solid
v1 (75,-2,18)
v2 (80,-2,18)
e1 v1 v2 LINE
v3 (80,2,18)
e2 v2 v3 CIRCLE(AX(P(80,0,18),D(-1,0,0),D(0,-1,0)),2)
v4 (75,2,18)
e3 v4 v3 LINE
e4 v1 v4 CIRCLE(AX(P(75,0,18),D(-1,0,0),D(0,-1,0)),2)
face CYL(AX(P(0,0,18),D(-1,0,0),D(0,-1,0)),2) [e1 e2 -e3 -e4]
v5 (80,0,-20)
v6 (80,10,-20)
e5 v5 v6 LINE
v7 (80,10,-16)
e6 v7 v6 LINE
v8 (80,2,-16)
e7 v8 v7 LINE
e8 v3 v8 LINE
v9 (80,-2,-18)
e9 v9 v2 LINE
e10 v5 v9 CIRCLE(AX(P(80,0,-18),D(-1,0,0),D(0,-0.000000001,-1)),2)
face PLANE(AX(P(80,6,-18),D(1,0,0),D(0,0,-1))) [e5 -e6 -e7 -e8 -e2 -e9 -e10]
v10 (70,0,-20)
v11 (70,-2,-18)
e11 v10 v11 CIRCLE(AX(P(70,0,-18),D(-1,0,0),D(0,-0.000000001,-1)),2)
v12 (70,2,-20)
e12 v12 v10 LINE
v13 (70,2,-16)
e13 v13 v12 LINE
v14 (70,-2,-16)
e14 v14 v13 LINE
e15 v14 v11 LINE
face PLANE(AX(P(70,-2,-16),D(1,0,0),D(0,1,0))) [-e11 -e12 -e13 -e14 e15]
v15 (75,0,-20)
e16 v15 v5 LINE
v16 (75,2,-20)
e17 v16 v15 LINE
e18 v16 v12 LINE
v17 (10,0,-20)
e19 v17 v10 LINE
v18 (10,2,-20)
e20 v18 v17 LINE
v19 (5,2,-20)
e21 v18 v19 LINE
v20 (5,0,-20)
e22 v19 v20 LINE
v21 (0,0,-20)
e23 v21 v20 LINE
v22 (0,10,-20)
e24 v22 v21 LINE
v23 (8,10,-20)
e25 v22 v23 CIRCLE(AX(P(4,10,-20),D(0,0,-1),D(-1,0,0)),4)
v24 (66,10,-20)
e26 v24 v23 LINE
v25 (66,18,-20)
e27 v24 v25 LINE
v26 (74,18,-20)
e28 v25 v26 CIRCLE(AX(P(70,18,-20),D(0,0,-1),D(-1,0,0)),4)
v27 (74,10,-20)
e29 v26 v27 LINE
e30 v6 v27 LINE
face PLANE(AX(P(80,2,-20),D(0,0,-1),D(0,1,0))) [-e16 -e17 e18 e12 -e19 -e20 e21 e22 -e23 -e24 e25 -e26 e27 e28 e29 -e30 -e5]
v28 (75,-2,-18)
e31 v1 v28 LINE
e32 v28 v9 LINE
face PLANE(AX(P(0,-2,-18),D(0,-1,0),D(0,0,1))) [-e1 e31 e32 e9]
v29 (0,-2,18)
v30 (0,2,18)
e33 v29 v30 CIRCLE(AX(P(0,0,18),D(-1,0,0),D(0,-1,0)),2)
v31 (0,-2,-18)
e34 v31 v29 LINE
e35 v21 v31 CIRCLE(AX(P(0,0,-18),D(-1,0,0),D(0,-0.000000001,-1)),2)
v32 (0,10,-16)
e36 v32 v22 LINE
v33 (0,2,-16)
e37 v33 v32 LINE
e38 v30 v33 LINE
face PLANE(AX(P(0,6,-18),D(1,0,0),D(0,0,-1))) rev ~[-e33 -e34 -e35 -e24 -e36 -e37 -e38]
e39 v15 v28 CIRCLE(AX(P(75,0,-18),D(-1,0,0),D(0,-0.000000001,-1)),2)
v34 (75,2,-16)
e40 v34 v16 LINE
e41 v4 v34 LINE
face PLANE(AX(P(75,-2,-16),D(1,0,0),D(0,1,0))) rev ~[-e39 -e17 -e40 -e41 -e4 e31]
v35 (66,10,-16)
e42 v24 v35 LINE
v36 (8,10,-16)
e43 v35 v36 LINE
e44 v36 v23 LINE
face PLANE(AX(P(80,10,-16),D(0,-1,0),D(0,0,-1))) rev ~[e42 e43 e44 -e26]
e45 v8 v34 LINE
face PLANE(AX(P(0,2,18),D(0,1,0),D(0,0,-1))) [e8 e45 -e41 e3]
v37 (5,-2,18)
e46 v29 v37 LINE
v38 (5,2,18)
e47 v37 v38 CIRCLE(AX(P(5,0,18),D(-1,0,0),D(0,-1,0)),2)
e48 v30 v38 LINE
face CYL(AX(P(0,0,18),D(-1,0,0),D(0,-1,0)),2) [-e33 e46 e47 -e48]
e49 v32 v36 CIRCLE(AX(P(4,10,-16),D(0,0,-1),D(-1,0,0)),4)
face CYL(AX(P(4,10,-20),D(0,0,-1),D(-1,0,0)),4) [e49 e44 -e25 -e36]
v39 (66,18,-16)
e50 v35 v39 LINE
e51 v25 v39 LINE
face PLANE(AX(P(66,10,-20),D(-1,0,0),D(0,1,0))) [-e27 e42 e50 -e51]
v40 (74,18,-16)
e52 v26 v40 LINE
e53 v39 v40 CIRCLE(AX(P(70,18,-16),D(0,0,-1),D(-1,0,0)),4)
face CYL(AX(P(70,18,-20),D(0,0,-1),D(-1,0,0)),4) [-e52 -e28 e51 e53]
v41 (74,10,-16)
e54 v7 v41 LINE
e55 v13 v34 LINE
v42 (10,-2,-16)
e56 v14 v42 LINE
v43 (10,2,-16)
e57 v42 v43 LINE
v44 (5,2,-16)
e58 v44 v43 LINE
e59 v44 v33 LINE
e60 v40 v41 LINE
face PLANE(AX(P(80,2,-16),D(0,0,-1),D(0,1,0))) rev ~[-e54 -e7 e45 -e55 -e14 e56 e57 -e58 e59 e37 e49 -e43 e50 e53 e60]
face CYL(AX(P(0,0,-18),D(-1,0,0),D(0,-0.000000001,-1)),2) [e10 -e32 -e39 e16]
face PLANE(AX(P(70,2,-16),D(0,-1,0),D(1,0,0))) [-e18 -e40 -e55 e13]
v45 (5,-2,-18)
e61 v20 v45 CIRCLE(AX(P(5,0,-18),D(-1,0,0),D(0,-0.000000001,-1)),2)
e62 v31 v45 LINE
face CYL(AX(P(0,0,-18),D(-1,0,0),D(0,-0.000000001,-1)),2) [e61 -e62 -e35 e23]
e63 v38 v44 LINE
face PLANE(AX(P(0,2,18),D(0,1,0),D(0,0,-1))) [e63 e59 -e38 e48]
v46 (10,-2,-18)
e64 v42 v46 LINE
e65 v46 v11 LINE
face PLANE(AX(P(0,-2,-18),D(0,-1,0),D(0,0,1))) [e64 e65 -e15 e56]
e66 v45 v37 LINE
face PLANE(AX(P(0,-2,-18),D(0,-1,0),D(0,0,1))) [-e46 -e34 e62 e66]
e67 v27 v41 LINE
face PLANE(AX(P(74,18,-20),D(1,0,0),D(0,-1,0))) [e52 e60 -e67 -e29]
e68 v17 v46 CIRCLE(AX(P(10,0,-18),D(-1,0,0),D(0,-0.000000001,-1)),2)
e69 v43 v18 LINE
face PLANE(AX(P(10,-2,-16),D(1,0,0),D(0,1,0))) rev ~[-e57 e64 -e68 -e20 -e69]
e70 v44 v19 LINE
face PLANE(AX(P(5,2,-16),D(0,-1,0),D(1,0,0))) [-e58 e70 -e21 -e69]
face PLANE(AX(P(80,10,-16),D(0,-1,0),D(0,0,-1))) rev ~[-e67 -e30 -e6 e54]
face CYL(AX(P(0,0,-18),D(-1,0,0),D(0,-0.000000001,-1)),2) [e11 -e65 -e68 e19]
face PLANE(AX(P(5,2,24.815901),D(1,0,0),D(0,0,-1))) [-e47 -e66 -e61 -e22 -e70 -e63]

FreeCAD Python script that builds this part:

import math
import FreeCAD as App
import Part
import Sketcher


def add_polygon(sketch, points):
    """Adds a closed chain of lines whose ends are joined by coincident constraints."""
    first, n = sketch.GeometryCount, len(points)
    for a, b in zip(points, points[1:] + points[:1]):
        sketch.addGeometry(Part.LineSegment(App.Vector(*a, 0), App.Vector(*b, 0)), False)
    for i in range(n):
        sketch.addConstraint(Sketcher.Constraint("Coincident", first + i, 2, first + (i + 1) % n, 1))

doc = App.newDocument("Part")
body = doc.addObject("PartDesign::Body", "Body")

# Sketch on YZ plane
sketch1 = body.newObject("Sketcher::SketchObject", "Sketch")
sketch1.AttachmentSupport = (doc.getObject("YZ_Plane"), [""])
sketch1.MapMode = "FlatFace"
sketch1.addGeometry(Part.LineSegment(App.Vector(2, -20, 0), App.Vector(2, 18, 0)), False)
sketch1.addGeometry(Part.ArcOfCircle(Part.Circle(App.Vector(0, 18, 0), App.Vector(0, 0, 1), 2), math.radians(0), math.radians(180)), False)
sketch1.addGeometry(Part.LineSegment(App.Vector(-2, 18, 0), App.Vector(-2, -18, 0)), False)
sketch1.addGeometry(Part.ArcOfCircle(Part.Circle(App.Vector(0, -18, 0), App.Vector(0, 0, 1), 2), math.radians(-180), math.radians(-90)), False)
sketch1.addGeometry(Part.LineSegment(App.Vector(0, -20, 0), App.Vector(2, -20, 0)), False)
sketch1.addConstraint(Sketcher.Constraint("Tangent", 0, 2, 1, 1))
sketch1.addConstraint(Sketcher.Constraint("Tangent", 1, 2, 2, 1))
sketch1.addConstraint(Sketcher.Constraint("Tangent", 2, 2, 3, 1))
sketch1.addConstraint(Sketcher.Constraint("Tangent", 3, 2, 4, 1))
sketch1.addConstraint(Sketcher.Constraint("Coincident", 4, 2, 0, 1))
sketch1.addConstraint(Sketcher.Constraint("Vertical", 0))
sketch1.addConstraint(Sketcher.Constraint("Vertical", 2))
sketch1.addConstraint(Sketcher.Constraint("Horizontal", 4))
sketch1.addConstraint(Sketcher.Constraint("Equal", 1, 3))
sketch1.addConstraint(Sketcher.Constraint("Symmetric", 1, 3, 3, 3, -1, 1))
sketch1.addConstraint(Sketcher.Constraint("Radius", 1, 2.0))
sketch1.addConstraint(Sketcher.Constraint("DistanceY", 0, 1, 0, 2, 38.0))
pad1 = body.newObject("PartDesign::Pad", "Pad")
pad1.Profile = sketch1
pad1.Length = 80

# Sketch on YZ plane
sketch2 = body.newObject("Sketcher::SketchObject", "Sketch001")
sketch2.AttachmentSupport = (doc.getObject("YZ_Plane"), [""])
sketch2.MapMode = "FlatFace"
sketch2.AttachmentOffset = App.Placement(App.Vector(0, 0, 80), App.Rotation())
add_polygon(sketch2, [(10, -16), (2, -16), (2, -20), (10, -20)])  # lines 0-3
sketch2.addConstraint(Sketcher.Constraint("Horizontal", 0))
sketch2.addConstraint(Sketcher.Constraint("Vertical", 1))
sketch2.addConstraint(Sketcher.Constraint("Horizontal", 2))
sketch2.addConstraint(Sketcher.Constraint("Vertical", 3))
sketch2.addConstraint(Sketcher.Constraint("DistanceX", 0, 2, 0, 1, 8.0))
sketch2.addConstraint(Sketcher.Constraint("DistanceY", 1, 2, 1, 1, 4.0))
sketch2.addConstraint(Sketcher.Constraint("DistanceX", -1, 1, 0, 2, 2.0))
sketch2.addConstraint(Sketcher.Constraint("DistanceY", 0, 2, -1, 1, 16.0))
pad2 = body.newObject("PartDesign::Pad", "Pad001")
pad2.Profile = sketch2
pad2.Length = 80
pad2.Reversed = True

# Sketch on XY plane
sketch3 = body.newObject("Sketcher::SketchObject", "Sketch002")
sketch3.AttachmentSupport = (doc.getObject("XY_Plane"), [""])
sketch3.MapMode = "FlatFace"
sketch3.AttachmentOffset = App.Placement(App.Vector(0, 0, -20), App.Rotation())
sketch3.addGeometry(Part.Circle(App.Vector(4, 10, 0), App.Vector(0, 0, 1), 4), False)
sketch3.addGeometry(Part.LineSegment(App.Vector(74, 10, 0), App.Vector(66, 10, 0)), False)
sketch3.addGeometry(Part.LineSegment(App.Vector(66, 10, 0), App.Vector(66, 18, 0)), False)
sketch3.addGeometry(Part.ArcOfCircle(Part.Circle(App.Vector(70, 18, 0), App.Vector(0, 0, 1), 4), math.radians(0), math.radians(180)), False)
sketch3.addGeometry(Part.LineSegment(App.Vector(74, 18, 0), App.Vector(74, 10, 0)), False)
sketch3.addConstraint(Sketcher.Constraint("Coincident", 1, 2, 2, 1))
sketch3.addConstraint(Sketcher.Constraint("Tangent", 2, 2, 3, 2))
sketch3.addConstraint(Sketcher.Constraint("Tangent", 3, 1, 4, 1))
sketch3.addConstraint(Sketcher.Constraint("Coincident", 4, 2, 1, 1))
sketch3.addConstraint(Sketcher.Constraint("Horizontal", 1))
sketch3.addConstraint(Sketcher.Constraint("Vertical", 2))
sketch3.addConstraint(Sketcher.Constraint("Vertical", 4))
sketch3.addConstraint(Sketcher.Constraint("Equal", 0, 3))
sketch3.addConstraint(Sketcher.Constraint("Horizontal", 0, 3, 1, 2))
sketch3.addConstraint(Sketcher.Constraint("Equal", 1, 2))
sketch3.addConstraint(Sketcher.Constraint("Diameter", 0, 8.0))
sketch3.addConstraint(Sketcher.Constraint("DistanceX", -1, 1, 0, 3, 4.0))
sketch3.addConstraint(Sketcher.Constraint("DistanceY", -1, 1, 0, 3, 10.0))
sketch3.addConstraint(Sketcher.Constraint("DistanceX", -1, 1, 3, 3, 70.0))
pad3 = body.newObject("PartDesign::Pad", "Pad002")
pad3.Profile = sketch3
pad3.Length = 4

# Sketch on XZ plane
sketch4 = body.newObject("Sketcher::SketchObject", "Sketch003")
sketch4.AttachmentSupport = (doc.getObject("XZ_Plane"), [""])
sketch4.MapMode = "FlatFace"
sketch4.AttachmentOffset = App.Placement(App.Vector(0, 0, -2), App.Rotation())
add_polygon(sketch4, [(5, -16), (5, 25), (75, 25), (75, -16)])  # lines 0-3
sketch4.addConstraint(Sketcher.Constraint("Vertical", 0))
sketch4.addConstraint(Sketcher.Constraint("Horizontal", 1))
sketch4.addConstraint(Sketcher.Constraint("Vertical", 2))
sketch4.addConstraint(Sketcher.Constraint("Horizontal", 3))
sketch4.addConstraint(Sketcher.Constraint("DistanceX", 1, 1, 1, 2, 70.0))
sketch4.addConstraint(Sketcher.Constraint("DistanceX", -1, 1, 0, 2, 5.0))
sketch4.addConstraint(Sketcher.Constraint("DistanceY", 2, 2, -1, 1, 16.0))
sketch4.addConstraint(Sketcher.Constraint("DistanceY", 0, 1, 0, 2, 40.815901))
pocket1 = body.newObject("PartDesign::Pocket", "Pocket")
pocket1.Profile = sketch4
pocket1.Length = 10
pocket1.Reversed = True

# Sketch on XY plane
sketch5 = body.newObject("Sketcher::SketchObject", "Sketch004")
sketch5.AttachmentSupport = (doc.getObject("XY_Plane"), [""])
sketch5.MapMode = "FlatFace"
sketch5.AttachmentOffset = App.Placement(App.Vector(0, 0, -16), App.Rotation())
add_polygon(sketch5, [(5, 2), (5, -2), (10, -2), (10, 2)])  # lines 0-3
add_polygon(sketch5, [(70, 2), (70, -2), (75, -2), (75, 2)])  # lines 4-7
sketch5.addConstraint(Sketcher.Constraint("Vertical", 0))
sketch5.addConstraint(Sketcher.Constraint("Horizontal", 1))
sketch5.addConstraint(Sketcher.Constraint("Vertical", 2))
sketch5.addConstraint(Sketcher.Constraint("Horizontal", 3))
sketch5.addConstraint(Sketcher.Constraint("Vertical", 4))
sketch5.addConstraint(Sketcher.Constraint("Horizontal", 5))
sketch5.addConstraint(Sketcher.Constraint("Vertical", 6))
sketch5.addConstraint(Sketcher.Constraint("Horizontal", 7))
sketch5.addConstraint(Sketcher.Constraint("Horizontal", 1, 2, 4, 2))
sketch5.addConstraint(Sketcher.Constraint("Horizontal", 3, 2, 6, 2))
sketch5.addConstraint(Sketcher.Constraint("Equal", 3, 5))
sketch5.addConstraint(Sketcher.Constraint("DistanceX", 1, 1, 1, 2, 5.0))
sketch5.addConstraint(Sketcher.Constraint("DistanceY", 0, 2, 0, 1, 4.0))
sketch5.addConstraint(Sketcher.Constraint("DistanceX", -1, 1, 0, 2, 5.0))
sketch5.addConstraint(Sketcher.Constraint("DistanceY", 0, 2, -1, 1, 2.0))
sketch5.addConstraint(Sketcher.Constraint("DistanceX", -1, 1, 4, 2, 70.0))
pocket2 = body.newObject("PartDesign::Pocket", "Pocket001")
pocket2.Profile = sketch5
pocket2.Length = 10

doc.recompute()
